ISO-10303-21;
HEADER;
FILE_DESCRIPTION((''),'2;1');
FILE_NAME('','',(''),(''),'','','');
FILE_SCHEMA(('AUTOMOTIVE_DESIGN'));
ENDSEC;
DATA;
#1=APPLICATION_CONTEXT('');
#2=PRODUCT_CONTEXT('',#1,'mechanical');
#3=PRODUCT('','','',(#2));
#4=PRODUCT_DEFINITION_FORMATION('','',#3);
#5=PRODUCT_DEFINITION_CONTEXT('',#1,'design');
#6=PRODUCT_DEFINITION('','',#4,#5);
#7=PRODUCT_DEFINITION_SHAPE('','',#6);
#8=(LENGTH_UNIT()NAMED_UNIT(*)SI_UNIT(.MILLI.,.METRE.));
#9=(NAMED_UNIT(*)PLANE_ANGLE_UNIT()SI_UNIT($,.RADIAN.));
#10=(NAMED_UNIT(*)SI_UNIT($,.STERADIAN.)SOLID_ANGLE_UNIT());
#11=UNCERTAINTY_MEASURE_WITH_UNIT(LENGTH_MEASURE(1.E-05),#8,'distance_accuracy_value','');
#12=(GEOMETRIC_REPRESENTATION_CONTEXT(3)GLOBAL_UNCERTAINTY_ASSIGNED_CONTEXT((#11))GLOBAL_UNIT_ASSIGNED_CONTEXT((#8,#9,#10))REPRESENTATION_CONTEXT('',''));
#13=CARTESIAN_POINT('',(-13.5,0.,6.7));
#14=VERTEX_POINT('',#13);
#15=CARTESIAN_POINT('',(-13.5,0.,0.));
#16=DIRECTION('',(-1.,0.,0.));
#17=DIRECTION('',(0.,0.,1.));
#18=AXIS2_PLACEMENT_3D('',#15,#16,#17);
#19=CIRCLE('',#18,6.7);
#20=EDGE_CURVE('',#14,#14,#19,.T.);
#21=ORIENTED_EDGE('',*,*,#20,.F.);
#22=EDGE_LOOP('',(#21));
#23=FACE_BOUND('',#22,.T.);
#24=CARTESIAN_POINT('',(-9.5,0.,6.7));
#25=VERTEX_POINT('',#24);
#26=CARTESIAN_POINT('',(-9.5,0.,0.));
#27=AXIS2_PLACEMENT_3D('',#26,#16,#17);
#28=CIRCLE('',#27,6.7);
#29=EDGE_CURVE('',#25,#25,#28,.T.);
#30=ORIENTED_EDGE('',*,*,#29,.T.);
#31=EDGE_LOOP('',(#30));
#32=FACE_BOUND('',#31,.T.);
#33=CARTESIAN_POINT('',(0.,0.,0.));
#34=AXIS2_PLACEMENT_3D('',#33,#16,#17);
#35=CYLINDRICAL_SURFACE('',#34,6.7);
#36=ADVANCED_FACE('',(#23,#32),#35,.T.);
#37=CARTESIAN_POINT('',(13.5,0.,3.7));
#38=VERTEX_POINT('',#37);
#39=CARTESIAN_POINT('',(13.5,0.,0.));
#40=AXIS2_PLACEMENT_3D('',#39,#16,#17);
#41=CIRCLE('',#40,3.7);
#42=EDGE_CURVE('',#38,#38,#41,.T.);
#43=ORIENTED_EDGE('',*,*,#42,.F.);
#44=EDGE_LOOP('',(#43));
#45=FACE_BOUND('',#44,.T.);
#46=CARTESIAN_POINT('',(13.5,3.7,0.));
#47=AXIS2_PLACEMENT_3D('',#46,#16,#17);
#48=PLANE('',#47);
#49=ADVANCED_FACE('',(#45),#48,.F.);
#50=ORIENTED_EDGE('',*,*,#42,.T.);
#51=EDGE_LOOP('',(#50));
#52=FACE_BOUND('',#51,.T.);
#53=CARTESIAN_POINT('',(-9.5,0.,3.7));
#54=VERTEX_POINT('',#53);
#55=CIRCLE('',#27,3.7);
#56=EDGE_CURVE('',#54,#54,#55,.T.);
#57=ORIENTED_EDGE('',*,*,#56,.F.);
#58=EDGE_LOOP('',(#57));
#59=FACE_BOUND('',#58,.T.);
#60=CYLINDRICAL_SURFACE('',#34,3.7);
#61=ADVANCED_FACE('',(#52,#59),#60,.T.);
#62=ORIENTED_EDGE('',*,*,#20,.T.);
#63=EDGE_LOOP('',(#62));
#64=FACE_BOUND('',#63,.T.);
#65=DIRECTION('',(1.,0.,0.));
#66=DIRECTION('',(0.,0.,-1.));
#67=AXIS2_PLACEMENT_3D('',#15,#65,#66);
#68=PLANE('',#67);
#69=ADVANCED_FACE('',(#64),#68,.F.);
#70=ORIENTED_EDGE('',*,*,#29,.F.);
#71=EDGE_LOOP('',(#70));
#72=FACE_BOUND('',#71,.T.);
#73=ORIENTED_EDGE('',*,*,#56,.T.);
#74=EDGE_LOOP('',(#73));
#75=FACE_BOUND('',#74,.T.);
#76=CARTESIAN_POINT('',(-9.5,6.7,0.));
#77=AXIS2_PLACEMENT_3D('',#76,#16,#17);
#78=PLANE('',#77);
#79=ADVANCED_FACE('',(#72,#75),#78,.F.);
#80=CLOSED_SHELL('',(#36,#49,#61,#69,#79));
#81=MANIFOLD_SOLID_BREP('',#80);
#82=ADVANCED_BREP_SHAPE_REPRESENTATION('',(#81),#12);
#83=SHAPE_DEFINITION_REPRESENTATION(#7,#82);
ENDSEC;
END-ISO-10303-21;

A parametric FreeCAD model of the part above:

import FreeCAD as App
import Part
import Sketcher


def add_polygon(sketch, points):
    """Adds a closed chain of lines whose ends are joined by coincident constraints."""
    first, n = sketch.GeometryCount, len(points)
    for a, b in zip(points, points[1:] + points[:1]):
        sketch.addGeometry(Part.LineSegment(App.Vector(*a, 0), App.Vector(*b, 0)), False)
    for i in range(n):
        sketch.addConstraint(Sketcher.Constraint("Coincident", first + i, 2, first + (i + 1) % n, 1))

doc = App.newDocument("Part")
body = doc.addObject("PartDesign::Body", "Body")

# Sketch on XY plane
sketch1 = body.newObject("Sketcher::SketchObject", "Sketch")
sketch1.AttachmentSupport = (doc.getObject("XY_Plane"), [""])
sketch1.MapMode = "FlatFace"
add_polygon(sketch1, [(-13.5, 6.7), (-13.5, 0), (13.5, 0), (13.5, 3.7), (-9.5, 3.7), (-9.5, 6.7)])  # lines 0-5
sketch1.addConstraint([
    Sketcher.Constraint("Vertical", 0),
    Sketcher.Constraint("Horizontal", 1),
    Sketcher.Constraint("Vertical", 2),
    Sketcher.Constraint("Horizontal", 3),
    Sketcher.Constraint("Vertical", 4),
    Sketcher.Constraint("Horizontal", 5),
    Sketcher.Constraint("Symmetric", 0, 2, 1, 2, -1, 1),
    Sketcher.Constraint("DistanceX", 1, 1, 1, 2, 27.0),
    Sketcher.Constraint("DistanceX", 3, 2, 3, 1, 23.0),
    Sketcher.Constraint("DistanceY", 4, 1, 4, 2, 3.0),
    Sketcher.Constraint("DistanceY", 0, 2, 0, 1, 6.7),
])
revolution = body.newObject("PartDesign::Revolution", "Revolution")
revolution.Profile = sketch1
revolution.ReferenceAxis = (sketch1, ["H_Axis"])
revolution.Angle = 360

doc.recompute()
